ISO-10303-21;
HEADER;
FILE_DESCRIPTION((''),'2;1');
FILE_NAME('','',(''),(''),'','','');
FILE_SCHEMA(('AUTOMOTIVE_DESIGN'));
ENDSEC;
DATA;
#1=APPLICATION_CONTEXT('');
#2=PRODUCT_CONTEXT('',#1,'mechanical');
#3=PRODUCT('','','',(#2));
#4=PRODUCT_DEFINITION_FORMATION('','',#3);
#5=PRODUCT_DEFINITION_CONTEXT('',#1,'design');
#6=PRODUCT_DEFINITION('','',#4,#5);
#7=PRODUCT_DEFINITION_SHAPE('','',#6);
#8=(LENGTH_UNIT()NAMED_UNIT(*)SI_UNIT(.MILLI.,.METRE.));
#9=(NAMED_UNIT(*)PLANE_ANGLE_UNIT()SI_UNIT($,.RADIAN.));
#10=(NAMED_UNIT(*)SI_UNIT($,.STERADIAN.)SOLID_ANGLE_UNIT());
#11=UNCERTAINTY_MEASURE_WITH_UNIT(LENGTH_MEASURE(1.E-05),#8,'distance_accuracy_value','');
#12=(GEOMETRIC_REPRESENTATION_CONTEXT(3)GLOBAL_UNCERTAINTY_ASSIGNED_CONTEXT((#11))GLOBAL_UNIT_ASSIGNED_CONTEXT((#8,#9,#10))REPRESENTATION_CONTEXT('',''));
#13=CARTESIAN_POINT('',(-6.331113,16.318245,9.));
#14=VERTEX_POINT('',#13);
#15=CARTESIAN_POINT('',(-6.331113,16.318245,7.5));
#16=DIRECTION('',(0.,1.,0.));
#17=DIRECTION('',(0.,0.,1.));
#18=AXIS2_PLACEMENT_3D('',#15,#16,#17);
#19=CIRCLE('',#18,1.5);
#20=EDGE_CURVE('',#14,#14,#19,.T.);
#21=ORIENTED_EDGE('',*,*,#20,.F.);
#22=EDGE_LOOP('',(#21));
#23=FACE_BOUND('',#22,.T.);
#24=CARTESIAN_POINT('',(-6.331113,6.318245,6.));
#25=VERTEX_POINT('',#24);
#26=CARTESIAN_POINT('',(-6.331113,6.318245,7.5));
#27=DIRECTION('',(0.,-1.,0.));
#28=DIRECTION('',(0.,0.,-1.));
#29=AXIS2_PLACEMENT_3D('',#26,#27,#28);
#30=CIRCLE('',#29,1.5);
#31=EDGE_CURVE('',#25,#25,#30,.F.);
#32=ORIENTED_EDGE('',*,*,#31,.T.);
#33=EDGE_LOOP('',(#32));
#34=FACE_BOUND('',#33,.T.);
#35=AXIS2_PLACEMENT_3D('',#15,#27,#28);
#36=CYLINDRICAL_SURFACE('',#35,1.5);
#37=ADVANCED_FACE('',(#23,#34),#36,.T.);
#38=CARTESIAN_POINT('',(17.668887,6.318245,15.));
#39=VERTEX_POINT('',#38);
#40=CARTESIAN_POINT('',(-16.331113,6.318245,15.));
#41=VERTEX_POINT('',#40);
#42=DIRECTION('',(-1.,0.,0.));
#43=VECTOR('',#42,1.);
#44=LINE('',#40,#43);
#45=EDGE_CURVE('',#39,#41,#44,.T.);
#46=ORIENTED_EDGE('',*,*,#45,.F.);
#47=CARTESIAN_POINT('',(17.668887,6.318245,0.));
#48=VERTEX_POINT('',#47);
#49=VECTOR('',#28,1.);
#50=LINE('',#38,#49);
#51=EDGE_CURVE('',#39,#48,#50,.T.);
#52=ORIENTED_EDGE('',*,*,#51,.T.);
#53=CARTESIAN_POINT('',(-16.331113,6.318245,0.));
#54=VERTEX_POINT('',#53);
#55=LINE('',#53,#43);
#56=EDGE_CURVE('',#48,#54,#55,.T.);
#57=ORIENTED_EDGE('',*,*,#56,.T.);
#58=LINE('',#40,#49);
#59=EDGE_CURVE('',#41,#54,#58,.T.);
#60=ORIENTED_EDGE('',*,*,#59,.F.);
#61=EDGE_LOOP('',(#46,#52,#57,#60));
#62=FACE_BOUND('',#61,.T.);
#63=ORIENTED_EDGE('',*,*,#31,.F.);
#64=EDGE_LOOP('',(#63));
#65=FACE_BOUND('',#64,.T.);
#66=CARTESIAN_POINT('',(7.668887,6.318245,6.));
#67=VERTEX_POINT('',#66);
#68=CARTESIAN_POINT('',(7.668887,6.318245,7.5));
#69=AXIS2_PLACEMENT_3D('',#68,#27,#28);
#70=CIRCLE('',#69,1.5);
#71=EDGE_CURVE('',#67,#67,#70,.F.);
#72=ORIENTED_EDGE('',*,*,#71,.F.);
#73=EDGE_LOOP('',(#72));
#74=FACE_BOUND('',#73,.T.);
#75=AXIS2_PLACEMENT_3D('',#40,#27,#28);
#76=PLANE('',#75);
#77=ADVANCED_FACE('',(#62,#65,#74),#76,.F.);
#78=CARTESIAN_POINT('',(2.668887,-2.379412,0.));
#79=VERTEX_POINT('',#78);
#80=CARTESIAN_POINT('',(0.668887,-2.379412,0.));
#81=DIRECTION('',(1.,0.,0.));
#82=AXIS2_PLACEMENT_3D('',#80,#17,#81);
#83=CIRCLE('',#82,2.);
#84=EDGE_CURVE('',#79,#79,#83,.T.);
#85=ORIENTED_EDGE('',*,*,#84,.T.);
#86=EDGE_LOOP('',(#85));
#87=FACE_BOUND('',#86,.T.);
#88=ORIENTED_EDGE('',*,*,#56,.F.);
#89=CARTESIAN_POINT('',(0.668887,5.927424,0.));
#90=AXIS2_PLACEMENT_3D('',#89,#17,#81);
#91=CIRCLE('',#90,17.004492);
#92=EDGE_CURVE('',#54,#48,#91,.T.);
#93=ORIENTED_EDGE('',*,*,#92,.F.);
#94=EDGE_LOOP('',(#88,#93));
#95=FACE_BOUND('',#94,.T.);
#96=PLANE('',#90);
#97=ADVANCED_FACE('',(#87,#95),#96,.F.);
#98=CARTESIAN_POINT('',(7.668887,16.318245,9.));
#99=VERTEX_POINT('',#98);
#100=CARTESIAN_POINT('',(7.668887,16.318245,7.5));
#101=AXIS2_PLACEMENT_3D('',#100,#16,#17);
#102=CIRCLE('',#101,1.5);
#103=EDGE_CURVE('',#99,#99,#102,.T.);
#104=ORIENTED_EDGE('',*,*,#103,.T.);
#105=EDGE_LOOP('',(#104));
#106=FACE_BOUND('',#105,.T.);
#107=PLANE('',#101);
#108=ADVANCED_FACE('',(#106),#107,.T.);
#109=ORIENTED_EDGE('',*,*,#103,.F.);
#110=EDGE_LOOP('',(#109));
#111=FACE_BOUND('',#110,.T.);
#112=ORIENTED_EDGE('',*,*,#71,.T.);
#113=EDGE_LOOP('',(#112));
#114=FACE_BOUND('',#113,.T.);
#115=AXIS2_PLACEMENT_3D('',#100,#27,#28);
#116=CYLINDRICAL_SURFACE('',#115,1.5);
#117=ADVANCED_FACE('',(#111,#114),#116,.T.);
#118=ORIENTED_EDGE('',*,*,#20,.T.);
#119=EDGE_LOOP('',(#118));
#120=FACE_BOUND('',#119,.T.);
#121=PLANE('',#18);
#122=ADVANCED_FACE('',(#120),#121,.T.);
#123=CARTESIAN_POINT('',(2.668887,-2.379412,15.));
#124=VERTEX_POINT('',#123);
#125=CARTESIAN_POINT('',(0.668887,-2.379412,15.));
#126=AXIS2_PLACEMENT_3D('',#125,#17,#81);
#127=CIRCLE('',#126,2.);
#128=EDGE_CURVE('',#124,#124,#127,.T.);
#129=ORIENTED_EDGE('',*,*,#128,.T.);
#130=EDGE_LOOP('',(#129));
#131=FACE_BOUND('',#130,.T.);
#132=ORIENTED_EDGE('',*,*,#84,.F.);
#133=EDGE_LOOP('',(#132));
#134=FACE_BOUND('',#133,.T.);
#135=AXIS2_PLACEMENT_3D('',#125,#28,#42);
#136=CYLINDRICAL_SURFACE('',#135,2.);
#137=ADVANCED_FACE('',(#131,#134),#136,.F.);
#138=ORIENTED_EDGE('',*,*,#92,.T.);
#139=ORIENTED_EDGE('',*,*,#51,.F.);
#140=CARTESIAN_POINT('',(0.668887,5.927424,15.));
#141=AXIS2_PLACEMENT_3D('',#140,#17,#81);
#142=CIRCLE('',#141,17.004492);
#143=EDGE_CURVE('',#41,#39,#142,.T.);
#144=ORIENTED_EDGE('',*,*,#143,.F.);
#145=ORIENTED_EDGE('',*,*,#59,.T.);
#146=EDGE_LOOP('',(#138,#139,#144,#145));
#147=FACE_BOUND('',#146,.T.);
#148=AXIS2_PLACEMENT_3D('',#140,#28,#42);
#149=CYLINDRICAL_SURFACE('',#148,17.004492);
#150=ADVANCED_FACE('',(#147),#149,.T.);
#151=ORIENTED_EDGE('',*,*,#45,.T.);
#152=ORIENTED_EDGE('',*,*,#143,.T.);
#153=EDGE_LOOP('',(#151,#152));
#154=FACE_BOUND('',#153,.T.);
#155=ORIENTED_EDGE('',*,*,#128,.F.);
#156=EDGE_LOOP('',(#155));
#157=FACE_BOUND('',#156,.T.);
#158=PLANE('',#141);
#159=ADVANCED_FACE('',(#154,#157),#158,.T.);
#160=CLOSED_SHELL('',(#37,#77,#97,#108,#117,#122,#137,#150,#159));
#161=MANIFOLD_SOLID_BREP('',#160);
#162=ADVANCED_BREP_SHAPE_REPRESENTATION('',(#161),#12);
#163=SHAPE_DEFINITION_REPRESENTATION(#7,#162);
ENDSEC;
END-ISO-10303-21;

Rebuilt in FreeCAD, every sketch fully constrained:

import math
import FreeCAD as App
import Part
import Sketcher
from FreeCAD import Vector

doc = App.newDocument("Part")
body = doc.addObject("PartDesign::Body", "Body")

sketch1 = body.newObject("Sketcher::SketchObject", "Sketch")
sketch1.AttachmentSupport = (doc.getObject("XY_Plane"), [""])
sketch1.MapMode = "FlatFace"
sketch1.addGeometry(Part.LineSegment(Vector(17.668887, 6.318245, 0), Vector(-16.331113, 6.318245, 0)), False)
sketch1.addGeometry(Part.ArcOfCircle(Part.Circle(Vector(0.668887, 5.927424, 0), Vector(0, 0, 1), 17.004492), math.radians(178.683033), math.radians(361.316967)), False)
sketch1.addGeometry(Part.Circle(Vector(0.668887, -2.379412, 0), Vector(0, 0, 1), 2), False)
sketch1.addConstraint(Sketcher.Constraint("Coincident", 0, 1, 1, 2))
sketch1.addConstraint(Sketcher.Constraint("Coincident", 1, 1, 0, 2))
sketch1.addConstraint(Sketcher.Constraint("Horizontal", 0))
sketch1.addConstraint(Sketcher.Constraint("Vertical", 1, 3, 2, 3))
sketch1.addConstraint(Sketcher.Constraint("Diameter", 2, 4.0))
sketch1.addConstraint(Sketcher.Constraint("DistanceX", 0, 2, 0, 1, 34.0))
sketch1.addConstraint(Sketcher.Constraint("Radius", 1, 17.004492))
sketch1.addConstraint(Sketcher.Constraint("DistanceY", 2, 3, -1, 1, 2.379412))
sketch1.addConstraint(Sketcher.Constraint("DistanceX", -1, 1, 1, 3, 0.668887))
sketch1.addConstraint(Sketcher.Constraint("DistanceY", -1, 1, 1, 3, 5.927424))
pad1 = body.newObject("PartDesign::Pad", "Pad")
pad1.Profile = sketch1
pad1.Length = 15

sketch2 = body.newObject("Sketcher::SketchObject", "Sketch001")
sketch2.AttachmentSupport = (doc.getObject("XZ_Plane"), [""])
sketch2.MapMode = "FlatFace"
sketch2.AttachmentOffset = App.Placement(Vector(0, 0, -6.318245), App.Rotation())
sketch2.addGeometry(Part.Circle(Vector(-6.331113, 7.5, 0), Vector(0, 0, 1), 1.5), False)
sketch2.addGeometry(Part.Circle(Vector(7.668887, 7.5, 0), Vector(0, 0, 1), 1.5), False)
sketch2.addConstraint(Sketcher.Constraint("Equal", 0, 1))
sketch2.addConstraint(Sketcher.Constraint("Horizontal", 0, 3, 1, 3))
sketch2.addConstraint(Sketcher.Constraint("Diameter", 0, 3.0))
sketch2.addConstraint(Sketcher.Constraint("DistanceX", 0, 3, 1, 3, 14.0))
sketch2.addConstraint(Sketcher.Constraint("DistanceY", -1, 1, 0, 3, 7.5))
sketch2.addConstraint(Sketcher.Constraint("DistanceX", 0, 3, -1, 1, 6.331113))
pad2 = body.newObject("PartDesign::Pad", "Pad001")
pad2.Profile = sketch2
pad2.Length = 10
pad2.Reversed = True

doc.recompute()
